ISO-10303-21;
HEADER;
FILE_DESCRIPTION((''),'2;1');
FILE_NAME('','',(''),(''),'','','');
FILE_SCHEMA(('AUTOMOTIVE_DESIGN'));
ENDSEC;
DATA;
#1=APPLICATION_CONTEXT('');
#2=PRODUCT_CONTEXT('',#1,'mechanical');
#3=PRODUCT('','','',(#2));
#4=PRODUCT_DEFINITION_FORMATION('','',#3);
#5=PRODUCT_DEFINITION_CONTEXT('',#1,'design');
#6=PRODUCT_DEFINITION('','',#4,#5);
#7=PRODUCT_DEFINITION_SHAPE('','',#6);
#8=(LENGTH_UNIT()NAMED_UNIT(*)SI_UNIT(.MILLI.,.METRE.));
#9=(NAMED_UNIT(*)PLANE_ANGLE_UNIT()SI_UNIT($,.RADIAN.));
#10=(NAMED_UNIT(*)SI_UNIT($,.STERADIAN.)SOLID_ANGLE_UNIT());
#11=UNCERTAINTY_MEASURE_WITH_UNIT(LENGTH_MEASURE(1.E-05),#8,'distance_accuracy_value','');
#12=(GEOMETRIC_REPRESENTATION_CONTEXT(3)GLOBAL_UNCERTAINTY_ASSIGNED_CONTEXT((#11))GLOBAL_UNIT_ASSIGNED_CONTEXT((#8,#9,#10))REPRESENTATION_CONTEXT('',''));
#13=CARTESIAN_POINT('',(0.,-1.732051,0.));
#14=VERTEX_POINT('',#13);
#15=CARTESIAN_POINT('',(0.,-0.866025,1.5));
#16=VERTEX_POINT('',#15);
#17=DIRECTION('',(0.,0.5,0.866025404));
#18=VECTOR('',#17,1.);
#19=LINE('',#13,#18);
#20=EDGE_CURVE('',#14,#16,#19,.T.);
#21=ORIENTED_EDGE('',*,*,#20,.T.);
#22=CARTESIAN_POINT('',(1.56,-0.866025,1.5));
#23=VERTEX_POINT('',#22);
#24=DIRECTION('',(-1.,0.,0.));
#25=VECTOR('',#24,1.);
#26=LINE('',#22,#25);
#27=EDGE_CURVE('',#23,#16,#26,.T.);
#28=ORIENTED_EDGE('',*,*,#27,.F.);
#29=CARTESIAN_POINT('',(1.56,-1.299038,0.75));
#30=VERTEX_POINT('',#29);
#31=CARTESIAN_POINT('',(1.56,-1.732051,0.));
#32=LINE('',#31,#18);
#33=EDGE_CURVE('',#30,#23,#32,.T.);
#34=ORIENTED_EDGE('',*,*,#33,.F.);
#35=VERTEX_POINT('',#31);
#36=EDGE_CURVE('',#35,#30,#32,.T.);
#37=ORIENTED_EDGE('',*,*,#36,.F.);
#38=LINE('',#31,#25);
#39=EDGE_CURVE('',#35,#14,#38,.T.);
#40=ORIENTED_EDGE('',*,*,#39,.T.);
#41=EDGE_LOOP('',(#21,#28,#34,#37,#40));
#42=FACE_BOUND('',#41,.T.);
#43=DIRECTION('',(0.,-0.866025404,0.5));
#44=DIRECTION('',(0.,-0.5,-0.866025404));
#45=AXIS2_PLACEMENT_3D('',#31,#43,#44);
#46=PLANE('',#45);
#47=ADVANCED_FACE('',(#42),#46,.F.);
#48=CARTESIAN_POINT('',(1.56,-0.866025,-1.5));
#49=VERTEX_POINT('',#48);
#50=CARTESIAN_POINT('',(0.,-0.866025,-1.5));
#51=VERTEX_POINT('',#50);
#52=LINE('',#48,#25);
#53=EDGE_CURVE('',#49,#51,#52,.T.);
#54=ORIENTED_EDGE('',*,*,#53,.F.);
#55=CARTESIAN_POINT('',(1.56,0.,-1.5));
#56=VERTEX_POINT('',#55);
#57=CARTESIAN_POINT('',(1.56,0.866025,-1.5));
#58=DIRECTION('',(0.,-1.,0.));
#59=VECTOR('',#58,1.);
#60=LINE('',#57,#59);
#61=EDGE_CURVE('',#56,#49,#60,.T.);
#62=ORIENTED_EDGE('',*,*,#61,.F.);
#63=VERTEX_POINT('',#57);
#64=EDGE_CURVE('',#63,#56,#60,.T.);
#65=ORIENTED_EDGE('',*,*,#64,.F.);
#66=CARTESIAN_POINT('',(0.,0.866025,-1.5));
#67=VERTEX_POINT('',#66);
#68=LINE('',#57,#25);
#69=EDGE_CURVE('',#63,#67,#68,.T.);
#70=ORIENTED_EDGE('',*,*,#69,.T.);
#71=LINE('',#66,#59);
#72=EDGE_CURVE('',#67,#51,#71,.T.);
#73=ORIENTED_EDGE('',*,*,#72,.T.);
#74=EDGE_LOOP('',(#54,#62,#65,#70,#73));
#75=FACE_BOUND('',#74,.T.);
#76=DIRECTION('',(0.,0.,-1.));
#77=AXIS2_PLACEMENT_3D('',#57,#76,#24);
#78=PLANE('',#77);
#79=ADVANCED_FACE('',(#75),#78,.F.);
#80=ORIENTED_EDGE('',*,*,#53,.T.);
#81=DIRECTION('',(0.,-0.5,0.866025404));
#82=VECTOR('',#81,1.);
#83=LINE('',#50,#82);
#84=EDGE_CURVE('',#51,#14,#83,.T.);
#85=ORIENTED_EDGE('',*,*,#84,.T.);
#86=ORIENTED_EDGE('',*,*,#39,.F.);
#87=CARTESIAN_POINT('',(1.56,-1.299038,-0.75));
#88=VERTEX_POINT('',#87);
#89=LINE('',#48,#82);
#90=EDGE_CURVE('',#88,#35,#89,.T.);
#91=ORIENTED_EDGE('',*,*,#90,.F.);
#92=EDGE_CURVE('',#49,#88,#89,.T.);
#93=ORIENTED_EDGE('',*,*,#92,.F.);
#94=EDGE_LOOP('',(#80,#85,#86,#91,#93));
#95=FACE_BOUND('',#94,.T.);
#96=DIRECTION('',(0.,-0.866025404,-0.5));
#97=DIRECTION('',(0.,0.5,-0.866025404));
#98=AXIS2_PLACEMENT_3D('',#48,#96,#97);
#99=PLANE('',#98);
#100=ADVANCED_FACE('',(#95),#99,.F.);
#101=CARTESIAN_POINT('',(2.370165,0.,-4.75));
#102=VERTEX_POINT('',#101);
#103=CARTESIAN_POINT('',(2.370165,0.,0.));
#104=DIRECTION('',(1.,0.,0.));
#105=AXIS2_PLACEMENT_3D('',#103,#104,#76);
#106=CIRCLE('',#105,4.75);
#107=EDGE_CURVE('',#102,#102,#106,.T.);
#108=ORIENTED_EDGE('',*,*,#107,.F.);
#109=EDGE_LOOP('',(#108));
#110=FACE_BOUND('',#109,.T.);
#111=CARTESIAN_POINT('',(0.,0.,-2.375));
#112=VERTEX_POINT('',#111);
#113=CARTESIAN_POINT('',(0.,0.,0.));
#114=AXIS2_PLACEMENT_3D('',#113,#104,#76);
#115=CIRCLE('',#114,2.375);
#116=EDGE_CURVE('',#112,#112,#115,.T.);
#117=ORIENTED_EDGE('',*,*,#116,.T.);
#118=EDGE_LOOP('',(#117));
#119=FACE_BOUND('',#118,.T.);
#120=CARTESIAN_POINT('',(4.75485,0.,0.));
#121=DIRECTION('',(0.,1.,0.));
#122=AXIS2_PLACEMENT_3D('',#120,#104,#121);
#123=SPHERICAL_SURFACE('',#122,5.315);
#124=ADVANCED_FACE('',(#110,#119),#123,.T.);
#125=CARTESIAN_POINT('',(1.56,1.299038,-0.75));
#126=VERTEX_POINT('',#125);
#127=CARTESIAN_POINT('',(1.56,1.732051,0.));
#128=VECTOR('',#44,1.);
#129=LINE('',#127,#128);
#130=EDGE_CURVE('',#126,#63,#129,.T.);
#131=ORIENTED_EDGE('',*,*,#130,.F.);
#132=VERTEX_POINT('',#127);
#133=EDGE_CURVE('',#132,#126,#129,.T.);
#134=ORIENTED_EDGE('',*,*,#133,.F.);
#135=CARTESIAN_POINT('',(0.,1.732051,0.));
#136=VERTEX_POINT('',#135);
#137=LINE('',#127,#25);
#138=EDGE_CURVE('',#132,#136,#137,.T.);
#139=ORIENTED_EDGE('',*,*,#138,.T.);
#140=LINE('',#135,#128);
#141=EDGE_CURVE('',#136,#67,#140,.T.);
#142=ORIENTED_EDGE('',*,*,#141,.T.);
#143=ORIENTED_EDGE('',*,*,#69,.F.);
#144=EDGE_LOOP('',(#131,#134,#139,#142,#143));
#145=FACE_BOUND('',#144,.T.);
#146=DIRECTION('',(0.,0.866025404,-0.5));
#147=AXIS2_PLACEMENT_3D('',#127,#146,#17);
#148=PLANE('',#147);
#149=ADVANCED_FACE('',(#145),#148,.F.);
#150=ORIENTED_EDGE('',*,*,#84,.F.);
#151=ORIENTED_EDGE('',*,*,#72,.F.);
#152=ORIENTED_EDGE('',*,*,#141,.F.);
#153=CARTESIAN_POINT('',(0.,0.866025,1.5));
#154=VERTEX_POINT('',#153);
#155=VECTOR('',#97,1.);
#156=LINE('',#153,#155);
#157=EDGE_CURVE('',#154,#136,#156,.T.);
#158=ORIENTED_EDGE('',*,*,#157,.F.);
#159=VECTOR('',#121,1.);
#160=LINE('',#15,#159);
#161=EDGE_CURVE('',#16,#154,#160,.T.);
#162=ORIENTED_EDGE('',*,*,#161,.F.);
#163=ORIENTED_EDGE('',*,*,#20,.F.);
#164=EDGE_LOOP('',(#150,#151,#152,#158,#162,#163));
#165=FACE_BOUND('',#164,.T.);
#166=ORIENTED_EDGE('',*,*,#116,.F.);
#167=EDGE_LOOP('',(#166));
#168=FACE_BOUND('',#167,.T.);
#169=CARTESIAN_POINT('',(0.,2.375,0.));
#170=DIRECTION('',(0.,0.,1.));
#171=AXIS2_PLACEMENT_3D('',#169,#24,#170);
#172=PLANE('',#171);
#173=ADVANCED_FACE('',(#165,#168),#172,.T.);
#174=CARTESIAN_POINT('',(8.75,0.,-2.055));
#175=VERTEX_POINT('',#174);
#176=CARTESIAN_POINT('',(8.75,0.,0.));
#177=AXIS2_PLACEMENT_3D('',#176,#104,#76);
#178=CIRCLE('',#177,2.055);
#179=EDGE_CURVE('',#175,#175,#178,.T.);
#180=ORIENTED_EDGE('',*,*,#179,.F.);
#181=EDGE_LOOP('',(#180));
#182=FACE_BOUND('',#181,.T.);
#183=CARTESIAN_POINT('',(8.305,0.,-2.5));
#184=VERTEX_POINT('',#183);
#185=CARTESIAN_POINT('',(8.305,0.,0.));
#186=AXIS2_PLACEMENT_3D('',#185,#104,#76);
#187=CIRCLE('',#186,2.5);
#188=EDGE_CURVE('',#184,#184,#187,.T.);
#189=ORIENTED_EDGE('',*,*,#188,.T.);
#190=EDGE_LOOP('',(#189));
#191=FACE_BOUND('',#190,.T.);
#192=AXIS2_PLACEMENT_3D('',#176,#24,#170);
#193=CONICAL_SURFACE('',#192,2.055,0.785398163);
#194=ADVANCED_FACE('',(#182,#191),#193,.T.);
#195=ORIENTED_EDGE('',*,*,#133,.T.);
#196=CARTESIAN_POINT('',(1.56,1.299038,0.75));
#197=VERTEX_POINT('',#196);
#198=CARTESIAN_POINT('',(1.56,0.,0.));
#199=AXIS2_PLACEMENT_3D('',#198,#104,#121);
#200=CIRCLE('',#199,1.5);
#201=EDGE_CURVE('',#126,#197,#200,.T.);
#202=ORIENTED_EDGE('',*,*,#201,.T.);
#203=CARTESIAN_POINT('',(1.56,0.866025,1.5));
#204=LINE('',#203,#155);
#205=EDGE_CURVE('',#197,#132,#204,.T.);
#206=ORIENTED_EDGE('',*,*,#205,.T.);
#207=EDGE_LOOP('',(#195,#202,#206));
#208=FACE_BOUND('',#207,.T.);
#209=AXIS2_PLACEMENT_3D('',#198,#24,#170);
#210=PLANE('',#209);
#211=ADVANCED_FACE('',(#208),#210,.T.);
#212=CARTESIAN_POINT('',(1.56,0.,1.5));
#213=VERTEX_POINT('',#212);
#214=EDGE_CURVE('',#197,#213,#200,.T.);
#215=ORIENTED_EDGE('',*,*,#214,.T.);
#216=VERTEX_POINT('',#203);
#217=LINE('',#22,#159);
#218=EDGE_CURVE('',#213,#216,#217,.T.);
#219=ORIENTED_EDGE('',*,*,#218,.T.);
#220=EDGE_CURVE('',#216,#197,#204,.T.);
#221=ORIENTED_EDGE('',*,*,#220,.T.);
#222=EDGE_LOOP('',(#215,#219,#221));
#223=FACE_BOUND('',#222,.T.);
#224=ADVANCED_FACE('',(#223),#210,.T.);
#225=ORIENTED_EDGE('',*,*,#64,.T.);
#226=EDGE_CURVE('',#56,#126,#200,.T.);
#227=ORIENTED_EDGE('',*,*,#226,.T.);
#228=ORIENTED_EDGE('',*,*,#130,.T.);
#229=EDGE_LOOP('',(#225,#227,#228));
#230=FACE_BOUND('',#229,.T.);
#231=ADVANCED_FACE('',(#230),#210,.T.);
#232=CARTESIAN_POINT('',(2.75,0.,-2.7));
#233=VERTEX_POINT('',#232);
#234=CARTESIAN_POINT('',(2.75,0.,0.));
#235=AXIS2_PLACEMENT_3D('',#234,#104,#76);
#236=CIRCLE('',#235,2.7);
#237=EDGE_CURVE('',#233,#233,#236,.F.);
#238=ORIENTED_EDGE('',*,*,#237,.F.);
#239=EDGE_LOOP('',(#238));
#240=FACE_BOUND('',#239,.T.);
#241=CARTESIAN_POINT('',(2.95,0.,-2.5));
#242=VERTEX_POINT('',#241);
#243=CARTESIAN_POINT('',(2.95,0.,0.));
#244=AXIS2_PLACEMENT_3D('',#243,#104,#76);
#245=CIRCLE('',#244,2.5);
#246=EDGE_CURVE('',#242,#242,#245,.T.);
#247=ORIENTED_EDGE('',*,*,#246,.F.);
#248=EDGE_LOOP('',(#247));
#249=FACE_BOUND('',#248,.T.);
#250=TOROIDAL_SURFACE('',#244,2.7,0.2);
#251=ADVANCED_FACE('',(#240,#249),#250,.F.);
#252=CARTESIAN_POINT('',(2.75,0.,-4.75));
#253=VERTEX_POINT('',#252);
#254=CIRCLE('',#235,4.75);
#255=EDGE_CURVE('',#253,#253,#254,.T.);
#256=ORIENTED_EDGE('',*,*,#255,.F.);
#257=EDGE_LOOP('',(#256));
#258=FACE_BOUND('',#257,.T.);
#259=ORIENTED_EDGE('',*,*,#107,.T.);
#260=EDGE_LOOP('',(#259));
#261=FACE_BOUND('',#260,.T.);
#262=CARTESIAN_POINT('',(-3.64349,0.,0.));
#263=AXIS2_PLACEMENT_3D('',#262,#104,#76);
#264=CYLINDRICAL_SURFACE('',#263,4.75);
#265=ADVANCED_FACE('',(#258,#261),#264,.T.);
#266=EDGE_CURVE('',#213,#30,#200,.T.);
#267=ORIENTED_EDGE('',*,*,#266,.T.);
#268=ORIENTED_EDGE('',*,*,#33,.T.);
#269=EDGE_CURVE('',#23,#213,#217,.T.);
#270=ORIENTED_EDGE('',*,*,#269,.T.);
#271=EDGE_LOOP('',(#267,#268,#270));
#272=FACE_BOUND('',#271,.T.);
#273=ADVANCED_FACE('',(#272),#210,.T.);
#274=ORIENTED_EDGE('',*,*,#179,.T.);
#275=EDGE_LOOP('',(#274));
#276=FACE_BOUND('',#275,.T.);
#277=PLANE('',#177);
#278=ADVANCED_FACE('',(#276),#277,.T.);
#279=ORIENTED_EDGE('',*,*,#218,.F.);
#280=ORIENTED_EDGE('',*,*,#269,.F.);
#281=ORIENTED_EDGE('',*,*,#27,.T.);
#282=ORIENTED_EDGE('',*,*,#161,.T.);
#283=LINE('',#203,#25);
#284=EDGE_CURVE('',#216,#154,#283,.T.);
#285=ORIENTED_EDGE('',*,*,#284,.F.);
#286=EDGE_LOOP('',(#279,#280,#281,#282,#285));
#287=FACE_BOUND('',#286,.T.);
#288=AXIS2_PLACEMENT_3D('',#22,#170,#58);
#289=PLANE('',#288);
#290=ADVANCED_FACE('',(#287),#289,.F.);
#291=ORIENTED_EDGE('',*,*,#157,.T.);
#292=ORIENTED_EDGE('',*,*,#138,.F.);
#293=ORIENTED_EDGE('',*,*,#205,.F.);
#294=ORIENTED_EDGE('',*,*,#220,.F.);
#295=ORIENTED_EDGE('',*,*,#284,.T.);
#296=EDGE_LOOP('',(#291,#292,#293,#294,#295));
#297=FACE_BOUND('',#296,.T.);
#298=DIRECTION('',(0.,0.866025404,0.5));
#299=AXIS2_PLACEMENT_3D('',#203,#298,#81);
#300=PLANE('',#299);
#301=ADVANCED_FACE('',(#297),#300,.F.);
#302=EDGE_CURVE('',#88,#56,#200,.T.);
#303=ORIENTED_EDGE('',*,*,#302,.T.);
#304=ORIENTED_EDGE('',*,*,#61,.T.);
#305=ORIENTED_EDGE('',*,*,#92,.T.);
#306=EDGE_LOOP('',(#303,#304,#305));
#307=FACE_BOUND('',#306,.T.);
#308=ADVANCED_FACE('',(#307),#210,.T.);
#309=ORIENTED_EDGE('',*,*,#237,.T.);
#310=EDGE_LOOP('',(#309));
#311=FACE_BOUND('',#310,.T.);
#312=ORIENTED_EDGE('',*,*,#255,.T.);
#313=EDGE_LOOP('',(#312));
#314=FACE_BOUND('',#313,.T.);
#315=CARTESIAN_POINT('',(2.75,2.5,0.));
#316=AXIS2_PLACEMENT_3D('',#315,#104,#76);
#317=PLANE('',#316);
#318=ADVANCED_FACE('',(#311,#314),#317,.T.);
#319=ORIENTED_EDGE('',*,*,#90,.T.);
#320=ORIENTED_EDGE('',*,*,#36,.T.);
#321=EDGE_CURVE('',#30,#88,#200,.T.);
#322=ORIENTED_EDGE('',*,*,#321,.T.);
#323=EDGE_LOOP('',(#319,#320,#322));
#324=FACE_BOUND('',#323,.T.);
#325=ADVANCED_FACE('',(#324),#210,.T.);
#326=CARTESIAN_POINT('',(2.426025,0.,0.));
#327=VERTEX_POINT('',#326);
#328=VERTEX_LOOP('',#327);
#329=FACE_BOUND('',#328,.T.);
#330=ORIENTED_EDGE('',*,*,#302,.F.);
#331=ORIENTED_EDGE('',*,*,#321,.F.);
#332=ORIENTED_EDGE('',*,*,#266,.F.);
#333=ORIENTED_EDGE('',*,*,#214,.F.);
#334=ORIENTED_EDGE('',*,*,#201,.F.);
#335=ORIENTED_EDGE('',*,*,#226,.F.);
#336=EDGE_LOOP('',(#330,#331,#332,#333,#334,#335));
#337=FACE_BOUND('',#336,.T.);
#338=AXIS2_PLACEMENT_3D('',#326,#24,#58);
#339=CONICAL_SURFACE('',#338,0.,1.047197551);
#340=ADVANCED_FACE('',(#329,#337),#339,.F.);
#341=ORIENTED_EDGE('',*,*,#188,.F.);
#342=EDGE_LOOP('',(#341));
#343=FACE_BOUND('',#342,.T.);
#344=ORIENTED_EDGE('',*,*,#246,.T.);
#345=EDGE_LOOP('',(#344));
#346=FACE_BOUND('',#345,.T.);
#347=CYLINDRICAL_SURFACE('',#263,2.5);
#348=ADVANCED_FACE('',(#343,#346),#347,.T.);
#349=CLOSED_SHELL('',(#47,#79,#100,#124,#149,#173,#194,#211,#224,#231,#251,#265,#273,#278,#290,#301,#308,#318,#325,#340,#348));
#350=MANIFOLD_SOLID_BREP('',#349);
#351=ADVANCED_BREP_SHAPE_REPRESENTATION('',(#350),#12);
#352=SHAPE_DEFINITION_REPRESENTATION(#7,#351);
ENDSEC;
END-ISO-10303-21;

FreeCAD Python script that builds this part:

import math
import FreeCAD as App
import Part
import Sketcher
Q = App.Units.Quantity


def edges_at(feature, points):
    """Names of the edges that pass closest to the given points."""
    edges = feature.Shape.Edges
    near = lambda p: min(range(len(edges)), key=lambda i: edges[i].distToShape(Part.Vertex(*p))[0])
    return sorted({f"Edge{near(p) + 1}" for p in points})


def add_polygon(sketch, points):
    """Adds a closed chain of lines whose ends are joined by coincident constraints."""
    first, n = sketch.GeometryCount, len(points)
    for a, b in zip(points, points[1:] + points[:1]):
        sketch.addGeometry(Part.LineSegment(App.Vector(*a, 0), App.Vector(*b, 0)), False)
    for i in range(n):
        sketch.addConstraint(Sketcher.Constraint("Coincident", first + i, 2, first + (i + 1) % n, 1))

doc = App.newDocument("Part")
body = doc.addObject("PartDesign::Body", "Body")

# Sketch on XY plane
sketch1 = body.newObject("Sketcher::SketchObject", "Sketch")
sketch1.AttachmentSupport = (doc.getObject("XY_Plane"), [""])
sketch1.MapMode = "FlatFace"
sketch1.addGeometry(Part.LineSegment(App.Vector(0, 2.38, 0), App.Vector(0, 0, 0)), False)
sketch1.addGeometry(Part.LineSegment(App.Vector(0, 0, 0), App.Vector(8.75, 0, 0)), False)
sketch1.addGeometry(Part.LineSegment(App.Vector(8.75, 0, 0), App.Vector(8.75, 2.06, 0)), False)
sketch1.addGeometry(Part.LineSegment(App.Vector(8.75, 2.06, 0), App.Vector(8.3, 2.5, 0)), False)
sketch1.addGeometry(Part.LineSegment(App.Vector(8.3, 2.5, 0), App.Vector(2.75, 2.5, 0)), False)
sketch1.addGeometry(Part.LineSegment(App.Vector(2.75, 2.5, 0), App.Vector(2.75, 4.75, 0)), False)
sketch1.addGeometry(Part.LineSegment(App.Vector(2.75, 4.75, 0), App.Vector(2.37, 4.75, 0)), False)
sketch1.addGeometry(Part.ArcOfCircle(Part.Circle(App.Vector(4.75, 0, 0), App.Vector(0, 0, 1), 5.32), math.radians(117), math.radians(153)), False)
sketch1.addConstraint(Sketcher.Constraint("Coincident", 0, 2, 1, 1))
sketch1.addConstraint(Sketcher.Constraint("Coincident", 1, 2, 2, 1))
sketch1.addConstraint(Sketcher.Constraint("Coincident", 2, 2, 3, 1))
sketch1.addConstraint(Sketcher.Constraint("Coincident", 3, 2, 4, 1))
sketch1.addConstraint(Sketcher.Constraint("Coincident", 4, 2, 5, 1))
sketch1.addConstraint(Sketcher.Constraint("Coincident", 5, 2, 6, 1))
sketch1.addConstraint(Sketcher.Constraint("Coincident", 6, 2, 7, 1))
sketch1.addConstraint(Sketcher.Constraint("Coincident", 7, 2, 0, 1))
sketch1.addConstraint(Sketcher.Constraint("Vertical", 0))
sketch1.addConstraint(Sketcher.Constraint("Horizontal", 1))
sketch1.addConstraint(Sketcher.Constraint("Vertical", 2))
sketch1.addConstraint(Sketcher.Constraint("Horizontal", 4))
sketch1.addConstraint(Sketcher.Constraint("Vertical", 5))
sketch1.addConstraint(Sketcher.Constraint("Horizontal", 6))
sketch1.addConstraint(Sketcher.Constraint("Coincident", 0, 2, -1, 1))
sketch1.addConstraint(Sketcher.Constraint("PointOnObject", 7, 3, -1))
sketch1.addConstraint(Sketcher.Constraint("Angle", 3, Q("135 deg")))
sketch1.addConstraint(Sketcher.Constraint("Radius", 7, 5.315))
sketch1.addConstraint(Sketcher.Constraint("DistanceX", 4, 2, 2, 2, 6.0))
sketch1.addConstraint(Sketcher.Constraint("DistanceX", 1, 1, 1, 2, 8.75))
sketch1.addConstraint(Sketcher.Constraint("DistanceY", 5, 1, 5, 2, 2.25))
sketch1.addConstraint(Sketcher.Constraint("DistanceY", -1, 1, 3, 2, 2.5))
sketch1.addConstraint(Sketcher.Constraint("DistanceX", 4, 2, 4, 1, 5.555))
sketch1.addConstraint(Sketcher.Constraint("DistanceY", 0, 2, 0, 1, 2.375))
revolution = body.newObject("PartDesign::Revolution", "Revolution")
revolution.Profile = sketch1
revolution.ReferenceAxis = (sketch1, ["H_Axis"])
revolution.Angle = 360
doc.recompute()

fillet = body.newObject("PartDesign::Fillet", "Fillet")
fillet.Base = (revolution, edges_at(revolution, [(2.75, -2.5, 0)]))
fillet.Radius = 0.2

# Sketch on XY plane
sketch2 = body.newObject("Sketcher::SketchObject", "Sketch001")
sketch2.AttachmentSupport = (doc.getObject("XY_Plane"), [""])
sketch2.MapMode = "FlatFace"
add_polygon(sketch2, [(0, 1.5), (0, 0), (2.4, 0), (1.6, 1.5)])  # lines 0-3
sketch2.addConstraint(Sketcher.Constraint("Vertical", 0))
sketch2.addConstraint(Sketcher.Constraint("Horizontal", 1))
sketch2.addConstraint(Sketcher.Constraint("Horizontal", 3))
sketch2.addConstraint(Sketcher.Constraint("Coincident", 0, 2, -1, 1))
sketch2.addConstraint(Sketcher.Constraint("Angle", 2, Q("120 deg")))
sketch2.addConstraint(Sketcher.Constraint("DistanceY", 0, 2, 0, 1, 1.5))
sketch2.addConstraint(Sketcher.Constraint("DistanceX", 3, 2, 3, 1, 1.56))
groove = body.newObject("PartDesign::Groove", "Groove")
groove.Profile = sketch2
groove.ReferenceAxis = (sketch2, ["H_Axis"])
groove.Angle = 360

# Sketch on YZ plane
sketch3 = body.newObject("Sketcher::SketchObject", "Sketch002")
sketch3.AttachmentSupport = (doc.getObject("YZ_Plane"), [""])
sketch3.MapMode = "FlatFace"
add_polygon(sketch3, [(-0.9, -1.5), (-1.7, 0), (-0.9, 1.5), (0.9, 1.5), (1.7, 0), (0.9, -1.5)])  # lines 0-5
sketch3.addConstraint(Sketcher.Constraint("Horizontal", 2))
sketch3.addConstraint(Sketcher.Constraint("Horizontal", 5))
sketch3.addConstraint(Sketcher.Constraint("Symmetric", 0, 2, 3, 2, -1, 1))
sketch3.addConstraint(Sketcher.Constraint("Symmetric", 1, 2, 4, 2, -1, 1))
sketch3.addConstraint(Sketcher.Constraint("PointOnObject", 0, 2, -1))
sketch3.addConstraint(Sketcher.Constraint("Parallel", 0, 3))
sketch3.addConstraint(Sketcher.Constraint("Vertical", 2, 2, 4, 2))
sketch3.addConstraint(Sketcher.Constraint("Angle", 0, Q("120 deg")))
sketch3.addConstraint(Sketcher.Constraint("DistanceY", 4, 2, 2, 2, 3.0))
sketch3.addConstraint(Sketcher.Constraint("DistanceX", 2, 1, 2, 2, 1.732051))
pocket1 = body.newObject("PartDesign::Pocket", "Pocket")
pocket1.Profile = sketch3
pocket1.Length = 1.56
pocket1.Reversed = True

doc.recompute()
